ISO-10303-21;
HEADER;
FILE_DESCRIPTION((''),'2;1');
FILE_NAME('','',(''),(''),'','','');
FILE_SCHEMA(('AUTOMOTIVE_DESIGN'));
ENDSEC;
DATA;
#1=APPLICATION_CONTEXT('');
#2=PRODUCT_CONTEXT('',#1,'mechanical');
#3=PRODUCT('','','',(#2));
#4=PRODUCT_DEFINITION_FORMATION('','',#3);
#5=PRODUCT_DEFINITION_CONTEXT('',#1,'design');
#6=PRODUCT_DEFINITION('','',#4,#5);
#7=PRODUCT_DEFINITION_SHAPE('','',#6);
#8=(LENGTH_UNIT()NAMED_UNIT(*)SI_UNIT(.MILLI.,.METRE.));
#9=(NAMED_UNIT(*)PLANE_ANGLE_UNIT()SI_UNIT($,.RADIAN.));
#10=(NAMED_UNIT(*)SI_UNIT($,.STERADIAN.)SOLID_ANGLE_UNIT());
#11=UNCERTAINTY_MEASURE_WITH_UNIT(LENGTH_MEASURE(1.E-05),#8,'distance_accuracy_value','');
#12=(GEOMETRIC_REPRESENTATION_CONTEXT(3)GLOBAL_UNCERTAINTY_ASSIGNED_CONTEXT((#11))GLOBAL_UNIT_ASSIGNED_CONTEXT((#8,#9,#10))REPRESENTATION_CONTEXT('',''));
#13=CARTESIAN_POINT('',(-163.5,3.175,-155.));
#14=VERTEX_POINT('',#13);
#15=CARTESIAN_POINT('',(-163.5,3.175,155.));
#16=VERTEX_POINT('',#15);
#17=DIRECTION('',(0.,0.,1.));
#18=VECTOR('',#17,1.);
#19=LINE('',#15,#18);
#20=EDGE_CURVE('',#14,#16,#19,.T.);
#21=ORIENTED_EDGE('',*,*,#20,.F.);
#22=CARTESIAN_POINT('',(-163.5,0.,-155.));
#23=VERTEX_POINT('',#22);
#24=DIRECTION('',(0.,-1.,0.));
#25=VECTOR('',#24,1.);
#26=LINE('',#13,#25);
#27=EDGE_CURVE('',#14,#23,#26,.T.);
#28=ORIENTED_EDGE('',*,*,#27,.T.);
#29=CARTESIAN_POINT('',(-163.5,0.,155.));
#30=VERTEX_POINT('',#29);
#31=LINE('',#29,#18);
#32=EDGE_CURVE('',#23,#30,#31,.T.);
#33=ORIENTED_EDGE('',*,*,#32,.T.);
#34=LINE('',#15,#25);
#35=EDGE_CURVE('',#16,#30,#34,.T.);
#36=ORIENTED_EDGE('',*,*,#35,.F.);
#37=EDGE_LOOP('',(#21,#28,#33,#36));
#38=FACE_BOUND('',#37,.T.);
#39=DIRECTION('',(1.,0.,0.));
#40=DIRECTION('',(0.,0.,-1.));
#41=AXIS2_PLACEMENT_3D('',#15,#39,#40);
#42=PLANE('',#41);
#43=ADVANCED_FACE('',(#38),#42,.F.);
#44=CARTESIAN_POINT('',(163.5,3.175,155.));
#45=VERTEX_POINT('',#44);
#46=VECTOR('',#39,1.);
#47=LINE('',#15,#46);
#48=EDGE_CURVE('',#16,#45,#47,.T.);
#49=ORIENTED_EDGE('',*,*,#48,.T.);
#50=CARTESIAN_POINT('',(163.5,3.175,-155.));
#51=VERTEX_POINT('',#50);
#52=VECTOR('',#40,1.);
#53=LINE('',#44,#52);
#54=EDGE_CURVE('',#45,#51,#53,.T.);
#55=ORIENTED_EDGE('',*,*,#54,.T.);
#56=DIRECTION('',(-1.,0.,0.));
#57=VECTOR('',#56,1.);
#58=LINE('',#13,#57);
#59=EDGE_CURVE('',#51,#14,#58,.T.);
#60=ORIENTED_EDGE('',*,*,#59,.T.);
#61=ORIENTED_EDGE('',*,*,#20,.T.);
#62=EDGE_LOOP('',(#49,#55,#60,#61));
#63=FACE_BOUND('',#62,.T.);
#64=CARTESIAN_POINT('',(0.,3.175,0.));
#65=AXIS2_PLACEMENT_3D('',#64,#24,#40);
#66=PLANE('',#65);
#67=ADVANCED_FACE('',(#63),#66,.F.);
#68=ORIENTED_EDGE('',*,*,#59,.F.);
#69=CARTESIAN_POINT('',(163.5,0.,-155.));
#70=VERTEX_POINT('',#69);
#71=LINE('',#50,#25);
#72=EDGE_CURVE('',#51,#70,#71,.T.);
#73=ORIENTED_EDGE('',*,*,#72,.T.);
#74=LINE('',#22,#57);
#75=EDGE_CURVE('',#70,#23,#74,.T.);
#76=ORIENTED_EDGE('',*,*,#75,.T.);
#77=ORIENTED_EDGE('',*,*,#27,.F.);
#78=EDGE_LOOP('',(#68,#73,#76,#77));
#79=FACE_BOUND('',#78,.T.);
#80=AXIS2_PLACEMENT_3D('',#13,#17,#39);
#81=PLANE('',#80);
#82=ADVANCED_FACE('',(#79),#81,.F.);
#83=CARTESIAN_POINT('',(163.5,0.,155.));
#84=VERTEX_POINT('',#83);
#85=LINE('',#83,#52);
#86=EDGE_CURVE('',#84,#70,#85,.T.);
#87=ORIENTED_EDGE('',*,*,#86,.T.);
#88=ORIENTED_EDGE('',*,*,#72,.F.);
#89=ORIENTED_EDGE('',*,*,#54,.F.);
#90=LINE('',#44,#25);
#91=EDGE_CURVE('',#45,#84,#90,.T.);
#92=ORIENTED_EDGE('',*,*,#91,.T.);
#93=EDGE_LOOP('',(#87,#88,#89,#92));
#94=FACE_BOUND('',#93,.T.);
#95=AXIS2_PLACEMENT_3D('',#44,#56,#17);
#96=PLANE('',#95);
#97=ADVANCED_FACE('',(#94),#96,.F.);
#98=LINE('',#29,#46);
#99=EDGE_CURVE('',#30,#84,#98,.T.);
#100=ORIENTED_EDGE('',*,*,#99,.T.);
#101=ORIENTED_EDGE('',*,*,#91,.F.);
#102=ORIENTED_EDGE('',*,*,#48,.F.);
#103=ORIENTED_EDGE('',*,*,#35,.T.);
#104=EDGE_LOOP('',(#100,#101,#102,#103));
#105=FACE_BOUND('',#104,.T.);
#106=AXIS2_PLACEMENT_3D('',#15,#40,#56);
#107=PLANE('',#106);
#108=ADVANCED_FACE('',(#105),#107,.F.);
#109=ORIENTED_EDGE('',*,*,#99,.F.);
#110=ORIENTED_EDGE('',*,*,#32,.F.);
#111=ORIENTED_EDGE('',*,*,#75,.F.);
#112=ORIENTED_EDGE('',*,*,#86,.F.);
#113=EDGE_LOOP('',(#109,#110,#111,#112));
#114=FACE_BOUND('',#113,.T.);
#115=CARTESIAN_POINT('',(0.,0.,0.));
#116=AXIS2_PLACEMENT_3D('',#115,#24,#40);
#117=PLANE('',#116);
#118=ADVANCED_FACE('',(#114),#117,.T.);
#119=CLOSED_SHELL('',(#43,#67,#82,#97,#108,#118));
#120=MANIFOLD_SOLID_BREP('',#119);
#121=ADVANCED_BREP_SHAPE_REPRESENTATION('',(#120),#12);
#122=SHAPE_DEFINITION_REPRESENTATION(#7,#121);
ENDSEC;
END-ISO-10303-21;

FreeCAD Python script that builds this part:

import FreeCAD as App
import Part
import Sketcher
from FreeCAD import Vector
Q = App.Units.Quantity

doc = App.newDocument("Part")
body = doc.addObject("PartDesign::Body", "Body")

sketch1 = doc.addObject("Sketcher::SketchObject", "Sketch")
body.addObject(sketch1)
sketch1.AttachmentSupport = (doc.XZ_Plane, [""])
sketch1.MapMode = "FlatFace"
sketch1.addGeometry([
    Part.LineSegment(Vector(-164, -155, 0), Vector(-164, 155, 0)),
    Part.LineSegment(Vector(-164, 155, 0), Vector(164, 155, 0)),
    Part.LineSegment(Vector(164, 155, 0), Vector(164, -155, 0)),
    Part.LineSegment(Vector(164, -155, 0), Vector(-164, -155, 0)),
], False)
sketch1.addConstraint([
    Sketcher.Constraint("Coincident", 0, 2, 1, 1),
    Sketcher.Constraint("Coincident", 1, 2, 2, 1),
    Sketcher.Constraint("Coincident", 2, 2, 3, 1),
    Sketcher.Constraint("Coincident", 3, 2, 0, 1),
    Sketcher.Constraint("Vertical", 0),
    Sketcher.Constraint("Horizontal", 1),
    Sketcher.Constraint("Vertical", 2),
    Sketcher.Constraint("Horizontal", 3),
    Sketcher.Constraint("Symmetric", 0, 2, 2, 2, -1, 1),
    Sketcher.Constraint("DistanceX", 1, 1, 1, 2, Q("327 mm")),
    Sketcher.Constraint("DistanceY", 0, 1, 0, 2, Q("310 mm")),
])
pad1 = doc.addObject("PartDesign::Pad", "Pad")
body.addObject(pad1)
pad1.Profile = sketch1
pad1.Length = 3.175
pad1.Reversed = True

doc.recompute()
